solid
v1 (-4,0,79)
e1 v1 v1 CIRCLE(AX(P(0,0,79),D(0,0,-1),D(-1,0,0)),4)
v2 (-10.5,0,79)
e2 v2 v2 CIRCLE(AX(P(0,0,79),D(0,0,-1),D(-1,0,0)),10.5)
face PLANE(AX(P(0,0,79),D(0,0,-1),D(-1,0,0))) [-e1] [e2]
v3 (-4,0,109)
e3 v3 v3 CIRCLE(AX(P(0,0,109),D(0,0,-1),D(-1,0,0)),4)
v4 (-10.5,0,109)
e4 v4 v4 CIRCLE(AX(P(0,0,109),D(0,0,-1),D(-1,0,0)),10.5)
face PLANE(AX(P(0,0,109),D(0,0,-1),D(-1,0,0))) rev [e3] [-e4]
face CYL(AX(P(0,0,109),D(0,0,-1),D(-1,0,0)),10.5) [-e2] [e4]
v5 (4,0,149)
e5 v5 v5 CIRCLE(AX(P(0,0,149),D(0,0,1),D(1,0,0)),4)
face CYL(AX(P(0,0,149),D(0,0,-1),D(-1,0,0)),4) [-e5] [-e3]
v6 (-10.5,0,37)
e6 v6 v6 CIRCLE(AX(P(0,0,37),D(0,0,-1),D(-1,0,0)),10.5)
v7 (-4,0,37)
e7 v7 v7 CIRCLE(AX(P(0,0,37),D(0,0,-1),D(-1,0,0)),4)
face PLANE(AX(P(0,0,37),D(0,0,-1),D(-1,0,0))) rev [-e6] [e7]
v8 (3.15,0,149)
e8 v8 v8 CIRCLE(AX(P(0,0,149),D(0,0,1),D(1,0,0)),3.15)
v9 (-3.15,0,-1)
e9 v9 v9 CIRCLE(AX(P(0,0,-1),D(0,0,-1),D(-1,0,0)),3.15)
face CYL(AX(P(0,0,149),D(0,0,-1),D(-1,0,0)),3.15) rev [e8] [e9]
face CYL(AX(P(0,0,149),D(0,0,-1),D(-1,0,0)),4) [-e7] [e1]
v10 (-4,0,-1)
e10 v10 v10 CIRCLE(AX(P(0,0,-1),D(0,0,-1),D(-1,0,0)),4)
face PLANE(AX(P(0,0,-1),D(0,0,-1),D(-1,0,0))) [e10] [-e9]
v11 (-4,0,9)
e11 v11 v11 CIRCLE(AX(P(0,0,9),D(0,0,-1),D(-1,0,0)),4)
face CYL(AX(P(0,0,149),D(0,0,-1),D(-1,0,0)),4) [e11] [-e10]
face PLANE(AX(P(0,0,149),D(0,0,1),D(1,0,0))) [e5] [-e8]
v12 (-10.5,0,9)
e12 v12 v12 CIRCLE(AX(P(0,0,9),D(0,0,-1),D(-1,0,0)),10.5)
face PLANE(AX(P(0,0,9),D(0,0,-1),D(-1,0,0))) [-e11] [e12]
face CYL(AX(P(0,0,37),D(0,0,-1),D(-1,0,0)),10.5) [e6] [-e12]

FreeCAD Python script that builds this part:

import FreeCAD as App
import Part
import Sketcher

V = App.Vector
Q = App.Units.Quantity

doc = App.newDocument("Part")
params = doc.addObject("Spreadsheet::Sheet", "Params")
for row, (alias, value) in enumerate([
    ("sketch1_diameter", "8 mm"),
    ("sketch1_diameter2", "6.3 mm"),
    ("pad1_length", "149 mm"),
    ("sketch2_diameter", "8 mm"),
    ("pad2_length", "1 mm"),
    ("sketch3_diameter", "21 mm"),
    ("sketch3_diameter2", "8 mm"),
    ("pad3_length", "30 mm"),
    ("sketch4_diameter", "21 mm"),
    ("sketch4_diameter2", "8 mm"),
    ("pad4_length", "28 mm"),
    ("sketch5_diameter", "6.3 mm"),
    ("pocket1_length", "10 mm"),
], start=1):
    params.set(f"A{row}", alias)
    params.set(f"B{row}", "=" + value)
    params.setAlias(f"B{row}", alias)

body = doc.addObject("PartDesign::Body", "Body")

# Sketch on XY plane
sketch1 = body.newObject("Sketcher::SketchObject", "Sketch")
sketch1.AttachmentSupport = (doc.getObject("XY_Plane"), [""])
sketch1.MapMode = "FlatFace"
sketch1.addGeometry(Part.Circle(V(0, 0, 0), V(0, 0, 1), 4), False)
sketch1.addGeometry(Part.Circle(V(0, 0, 0), V(0, 0, 1), 3.1), False)
sketch1.addConstraint(Sketcher.Constraint("Coincident", 0, 3, -1, 1))
sketch1.addConstraint(Sketcher.Constraint("Coincident", 1, 3, -1, 1))
sketch1.addConstraint(Sketcher.Constraint("Diameter", 0, Q("8 mm")))
sketch1.addConstraint(Sketcher.Constraint("Diameter", 1, Q("6.3 mm")))
sketch1.setExpression("Constraints[2]", "Params.sketch1_diameter")
sketch1.setExpression("Constraints[3]", "Params.sketch1_diameter2")
pad1 = body.newObject("PartDesign::Pad", "Pad")
pad1.Profile = sketch1
pad1.setExpression("Length", "Params.pad1_length")

# Sketch on XY plane
sketch2 = body.newObject("Sketcher::SketchObject", "Sketch001")
sketch2.AttachmentSupport = (doc.getObject("XY_Plane"), [""])
sketch2.MapMode = "FlatFace"
sketch2.AttachmentOffset = App.Placement(V(0, 0, -1), App.Rotation())
sketch2.addGeometry(Part.Circle(V(0, 0, 0), V(0, 0, 1), 4), False)
sketch2.addConstraint(Sketcher.Constraint("Coincident", 0, 3, -1, 1))
sketch2.addConstraint(Sketcher.Constraint("Diameter", 0, Q("8 mm")))
sketch2.setExpression("Constraints[1]", "Params.sketch2_diameter")
pad2 = body.newObject("PartDesign::Pad", "Pad001")
pad2.Profile = sketch2
pad2.setExpression("Length", "Params.pad2_length")

# Sketch on XY plane
sketch3 = body.newObject("Sketcher::SketchObject", "Sketch002")
sketch3.AttachmentSupport = (doc.getObject("XY_Plane"), [""])
sketch3.MapMode = "FlatFace"
sketch3.AttachmentOffset = App.Placement(V(0, 0, 79), App.Rotation())
sketch3.addGeometry(Part.Circle(V(0, 0, 0), V(0, 0, 1), 10.5), False)
sketch3.addGeometry(Part.Circle(V(0, 0, 0), V(0, 0, 1), 4), False)
sketch3.addConstraint(Sketcher.Constraint("Coincident", 0, 3, -1, 1))
sketch3.addConstraint(Sketcher.Constraint("Coincident", 1, 3, -1, 1))
sketch3.addConstraint(Sketcher.Constraint("Diameter", 0, Q("21 mm")))
sketch3.addConstraint(Sketcher.Constraint("Diameter", 1, Q("8 mm")))
sketch3.setExpression("Constraints[2]", "Params.sketch3_diameter")
sketch3.setExpression("Constraints[3]", "Params.sketch3_diameter2")
pad3 = body.newObject("PartDesign::Pad", "Pad002")
pad3.Profile = sketch3
pad3.setExpression("Length", "Params.pad3_length")

# Sketch on XY plane
sketch4 = body.newObject("Sketcher::SketchObject", "Sketch003")
sketch4.AttachmentSupport = (doc.getObject("XY_Plane"), [""])
sketch4.MapMode = "FlatFace"
sketch4.AttachmentOffset = App.Placement(V(0, 0, 9), App.Rotation())
sketch4.addGeometry(Part.Circle(V(0, 0, 0), V(0, 0, 1), 10.5), False)
sketch4.addGeometry(Part.Circle(V(0, 0, 0), V(0, 0, 1), 4), False)
sketch4.addConstraint(Sketcher.Constraint("Coincident", 0, 3, -1, 1))
sketch4.addConstraint(Sketcher.Constraint("Coincident", 1, 3, -1, 1))
sketch4.addConstraint(Sketcher.Constraint("Diameter", 0, Q("21 mm")))
sketch4.addConstraint(Sketcher.Constraint("Diameter", 1, Q("8 mm")))
sketch4.setExpression("Constraints[2]", "Params.sketch4_diameter")
sketch4.setExpression("Constraints[3]", "Params.sketch4_diameter2")
pad4 = body.newObject("PartDesign::Pad", "Pad003")
pad4.Profile = sketch4
pad4.setExpression("Length", "Params.pad4_length")

# Sketch on XY plane
sketch5 = body.newObject("Sketcher::SketchObject", "Sketch004")
sketch5.AttachmentSupport = (doc.getObject("XY_Plane"), [""])
sketch5.MapMode = "FlatFace"
sketch5.AttachmentOffset = App.Placement(V(0, 0, -1), App.Rotation())
sketch5.addGeometry(Part.Circle(V(0, 0, 0), V(0, 0, 1), 3.1), False)
sketch5.addConstraint(Sketcher.Constraint("Coincident", 0, 3, -1, 1))
sketch5.addConstraint(Sketcher.Constraint("Diameter", 0, Q("6.3 mm")))
sketch5.setExpression("Constraints[1]", "Params.sketch5_diameter")
pocket1 = body.newObject("PartDesign::Pocket", "Pocket")
pocket1.Profile = sketch5
pocket1.setExpression("Length", "Params.pocket1_length")
pocket1.Reversed = True

doc.recompute()
